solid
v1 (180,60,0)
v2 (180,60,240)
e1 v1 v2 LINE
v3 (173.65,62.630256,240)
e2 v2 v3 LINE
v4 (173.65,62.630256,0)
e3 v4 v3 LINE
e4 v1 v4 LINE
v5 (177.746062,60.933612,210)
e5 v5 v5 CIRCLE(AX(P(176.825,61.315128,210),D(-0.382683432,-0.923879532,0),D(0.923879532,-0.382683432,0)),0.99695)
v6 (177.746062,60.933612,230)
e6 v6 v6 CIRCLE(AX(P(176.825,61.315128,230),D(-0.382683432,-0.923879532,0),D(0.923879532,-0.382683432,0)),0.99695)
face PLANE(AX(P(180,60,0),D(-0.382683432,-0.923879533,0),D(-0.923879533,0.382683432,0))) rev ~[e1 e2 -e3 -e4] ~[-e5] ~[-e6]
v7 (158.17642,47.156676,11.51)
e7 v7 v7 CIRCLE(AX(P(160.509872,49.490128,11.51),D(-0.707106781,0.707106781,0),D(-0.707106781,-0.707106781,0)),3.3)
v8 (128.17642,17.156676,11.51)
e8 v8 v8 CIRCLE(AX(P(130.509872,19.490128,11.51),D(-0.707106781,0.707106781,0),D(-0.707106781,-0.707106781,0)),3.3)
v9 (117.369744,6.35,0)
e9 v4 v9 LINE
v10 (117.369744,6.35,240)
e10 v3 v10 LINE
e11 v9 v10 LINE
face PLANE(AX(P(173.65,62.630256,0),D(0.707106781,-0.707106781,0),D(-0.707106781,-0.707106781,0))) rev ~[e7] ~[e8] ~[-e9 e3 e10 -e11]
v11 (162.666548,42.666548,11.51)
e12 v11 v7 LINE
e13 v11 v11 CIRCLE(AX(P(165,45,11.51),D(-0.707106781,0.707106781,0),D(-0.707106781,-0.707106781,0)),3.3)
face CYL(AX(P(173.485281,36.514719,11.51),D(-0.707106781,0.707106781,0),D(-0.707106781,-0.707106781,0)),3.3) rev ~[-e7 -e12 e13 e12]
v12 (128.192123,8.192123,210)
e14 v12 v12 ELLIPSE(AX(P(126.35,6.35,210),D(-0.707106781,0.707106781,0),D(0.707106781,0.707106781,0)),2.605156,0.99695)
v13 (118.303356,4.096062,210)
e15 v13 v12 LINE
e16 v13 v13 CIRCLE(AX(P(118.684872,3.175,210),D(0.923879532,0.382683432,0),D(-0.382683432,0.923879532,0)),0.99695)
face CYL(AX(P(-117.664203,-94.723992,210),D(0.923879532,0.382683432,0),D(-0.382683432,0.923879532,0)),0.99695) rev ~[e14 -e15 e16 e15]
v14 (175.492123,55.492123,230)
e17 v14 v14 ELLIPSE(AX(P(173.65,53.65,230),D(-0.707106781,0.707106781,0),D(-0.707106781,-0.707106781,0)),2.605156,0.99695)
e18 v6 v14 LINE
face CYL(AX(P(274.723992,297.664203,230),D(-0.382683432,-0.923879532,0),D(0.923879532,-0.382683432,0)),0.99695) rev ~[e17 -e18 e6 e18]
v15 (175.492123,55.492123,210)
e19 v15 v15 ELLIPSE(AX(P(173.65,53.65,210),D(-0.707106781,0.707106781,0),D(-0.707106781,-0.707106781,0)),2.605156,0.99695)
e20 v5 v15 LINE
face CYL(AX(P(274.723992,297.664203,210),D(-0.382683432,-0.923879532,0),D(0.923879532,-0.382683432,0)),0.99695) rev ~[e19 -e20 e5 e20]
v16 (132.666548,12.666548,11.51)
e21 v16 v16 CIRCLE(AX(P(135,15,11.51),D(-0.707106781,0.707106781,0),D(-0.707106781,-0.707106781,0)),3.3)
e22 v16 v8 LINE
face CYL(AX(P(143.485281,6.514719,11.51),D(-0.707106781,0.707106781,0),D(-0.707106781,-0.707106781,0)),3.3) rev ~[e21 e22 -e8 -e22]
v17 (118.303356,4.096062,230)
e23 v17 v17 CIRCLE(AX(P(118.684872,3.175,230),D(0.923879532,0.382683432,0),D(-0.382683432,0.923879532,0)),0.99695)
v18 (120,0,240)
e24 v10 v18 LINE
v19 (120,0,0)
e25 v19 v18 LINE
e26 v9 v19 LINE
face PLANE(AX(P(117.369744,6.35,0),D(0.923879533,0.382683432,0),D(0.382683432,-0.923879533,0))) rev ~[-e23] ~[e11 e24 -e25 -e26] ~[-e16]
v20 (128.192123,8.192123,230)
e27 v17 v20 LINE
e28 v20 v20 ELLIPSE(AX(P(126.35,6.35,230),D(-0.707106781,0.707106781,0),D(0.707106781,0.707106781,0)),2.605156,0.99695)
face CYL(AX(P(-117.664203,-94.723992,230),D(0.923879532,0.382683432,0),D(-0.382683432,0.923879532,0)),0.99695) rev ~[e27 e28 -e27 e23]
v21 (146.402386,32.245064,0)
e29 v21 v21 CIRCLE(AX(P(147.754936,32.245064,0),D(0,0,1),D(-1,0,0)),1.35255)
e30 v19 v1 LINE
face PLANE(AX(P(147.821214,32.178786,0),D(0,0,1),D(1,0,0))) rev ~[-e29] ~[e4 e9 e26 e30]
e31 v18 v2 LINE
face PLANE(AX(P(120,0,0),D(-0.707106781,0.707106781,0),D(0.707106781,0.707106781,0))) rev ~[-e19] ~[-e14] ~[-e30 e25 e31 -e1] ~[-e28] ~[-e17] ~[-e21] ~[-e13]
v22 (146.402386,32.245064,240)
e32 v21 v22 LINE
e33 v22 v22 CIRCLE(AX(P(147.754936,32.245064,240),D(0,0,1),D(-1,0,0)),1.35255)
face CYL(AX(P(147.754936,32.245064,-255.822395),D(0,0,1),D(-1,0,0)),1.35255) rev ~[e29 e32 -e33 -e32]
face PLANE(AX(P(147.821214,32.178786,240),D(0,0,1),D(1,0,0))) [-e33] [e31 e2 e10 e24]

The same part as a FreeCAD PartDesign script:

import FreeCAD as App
import Part
import Sketcher
from FreeCAD import Vector
Q = App.Units.Quantity


def add_polygon(sketch, points):
    """Adds a closed chain of lines whose ends are joined by coincident constraints."""
    first, n = sketch.GeometryCount, len(points)
    for a, b in zip(points, points[1:] + points[:1]):
        sketch.addGeometry(Part.LineSegment(App.Vector(*a, 0), App.Vector(*b, 0)), False)
    for i in range(n):
        sketch.addConstraint(Sketcher.Constraint("Coincident", first + i, 2, first + (i + 1) % n, 1))

doc = App.newDocument("Part")
params = doc.addObject("Spreadsheet::Sheet", "Params")
for row, (alias, value) in enumerate([
    ("pad1_length", "240 mm"),
    ("sketch2_diameter", "6.6 mm"),
    ("hole_diameter", "6.6 mm"),
    ("hole_depth", "12 mm"),
    ("hole2_diameter", "2.7051 mm"),
    ("pad2_length", "240 mm"),
    ("sketch5_diameter", "6.6 mm"),
    ("hole3_diameter", "6.6 mm"),
    ("hole3_depth", "12 mm"),
    ("hole4_diameter", "2.7051 mm"),
    ("pad3_length", "240 mm"),
    ("sketch8_diameter", "6.6 mm"),
    ("hole5_diameter", "6.6 mm"),
    ("hole5_depth", "12 mm"),
    ("pad4_length", "240 mm"),
    ("sketch10_diameter", "6.6 mm"),
    ("hole6_diameter", "6.6 mm"),
    ("hole6_depth", "12 mm"),
    ("hole7_diameter", "2.7051 mm"),
    ("hole8_diameter", "1.9939 mm"),
    ("hole9_diameter", "1.9939 mm"),
], start=1):
    params.set(f"A{row}", alias)
    params.set(f"B{row}", "=" + value)
    params.setAlias(f"B{row}", alias)

body = doc.addObject("PartDesign::Body", "Body")

# Sketch on XY plane
sketch1 = doc.addObject("Sketcher::SketchObject", "Sketch")
body.addObject(sketch1)
sketch1.AttachmentSupport = (doc.XY_Plane, [""])
sketch1.MapMode = "FlatFace"
add_polygon(sketch1, [(-180, 60), (-120, 0), (-117, 6), (-174, 63)])  # lines 0-3
sketch1.addConstraint(Sketcher.Constraint("PointOnObject", 0, 2, -1))
sketch1.addConstraint(Sketcher.Constraint("Parallel", 0, 2))
sketch1.addConstraint(Sketcher.Constraint("Equal", 1, 3))
sketch1.addConstraint(Sketcher.Constraint("Angle", 0, Q("-45 deg")))
sketch1.addConstraint(Sketcher.Constraint("DistanceX", 0, 2, -1, 1, 120.0))
sketch1.addConstraint(Sketcher.Constraint("DistanceX", 3, 2, -1, 1, 180.0))
sketch1.addConstraint(Sketcher.Constraint("Angle", 1, Q("67.5 deg")))
sketch1.addConstraint(Sketcher.Constraint("DistanceY", -1, 1, 1, 2, 6.35))
pad1 = doc.addObject("PartDesign::Pad", "Pad")
body.addObject(pad1)
pad1.Profile = sketch1
pad1.setExpression("Length", "Params.pad1_length")

# Sketch on an angled plane
sketch2 = doc.addObject("Sketcher::SketchObject", "Sketch001")
body.addObject(sketch2)
sketch2.Placement = App.Placement(Vector(-60, -60, 0), App.Rotation(Vector(0.707106781, -0.707106781, 0), Vector(0, 0, 0.999999999), Vector(-0.707106781, -0.707106781, 0), "ZXY"))
sketch2.addGeometry(Part.Circle(Vector(-106.1, 11.5, 0), Vector(0, 0, 1), 3.3), False)
sketch2.addGeometry(Part.Circle(Vector(-148.5, 11.5, 0), Vector(0, 0, 1), 3.3), False)
sketch2.addConstraint(Sketcher.Constraint("Equal", 0, 1))
sketch2.addConstraint(Sketcher.Constraint("Horizontal", 0, 3, 1, 3))
sketch2.addConstraint(Sketcher.Constraint("Diameter", 0, 6.6))
sketch2.addConstraint(Sketcher.Constraint("DistanceY", -1, 1, 0, 3, 11.51))
sketch2.addConstraint(Sketcher.Constraint("DistanceX", 0, 3, -1, 1, 106.066017))
sketch2.addConstraint(Sketcher.Constraint("DistanceX", 1, 3, -1, 1, 148.492424))
sketch2.setExpression("Constraints[2]", "Params.sketch2_diameter")
doc.recompute()
hole = doc.addObject("PartDesign::Hole", "Hole")
body.addObject(hole)
hole.Profile = sketch2
hole.ThreadType = "None"
hole.setExpression("Diameter", "Params.hole_diameter")
hole.DepthType = "Dimension"
hole.setExpression("Depth", "Params.hole_depth")
hole.DrillPoint = "Angled"
hole.DrillPointAngle = 118

# Sketch on XY plane
sketch3 = doc.addObject("Sketcher::SketchObject", "Sketch002")
body.addObject(sketch3)
sketch3.AttachmentSupport = (doc.XY_Plane, [""])
sketch3.MapMode = "FlatFace"
sketch3.addGeometry(Part.Circle(Vector(-147.8, 32.2, 0), Vector(0, 0, 1), 1.4), False)
sketch3.addConstraint(Sketcher.Constraint("Diameter", 0, 2.7051))
sketch3.addConstraint(Sketcher.Constraint("DistanceX", 0, 3, -1, 1, 147.754936))
sketch3.addConstraint(Sketcher.Constraint("DistanceY", -1, 1, 0, 3, 32.245064))
doc.recompute()
hole2 = doc.addObject("PartDesign::Hole", "Hole001")
body.addObject(hole2)
hole2.Profile = sketch3
hole2.ThreadType = "None"
hole2.setExpression("Diameter", "Params.hole2_diameter")
hole2.DepthType = "ThroughAll"
hole2.Reversed = True
body2 = doc.addObject("PartDesign::Body", "Body001")

# Sketch on XY plane
sketch4 = doc.addObject("Sketcher::SketchObject", "Sketch003")
body2.addObject(sketch4)
sketch4.AttachmentSupport = (doc.getObject("XY_Plane001"), [""])
sketch4.MapMode = "FlatFace"
add_polygon(sketch4, [(-120, 280), (-180, 220), (-174, 217), (-117, 274)])  # lines 0-3
sketch4.addConstraint(Sketcher.Constraint("Parallel", 0, 2))
sketch4.addConstraint(Sketcher.Constraint("Equal", 1, 3))
sketch4.addConstraint(Sketcher.Constraint("Angle", 0, Q("-135 deg")))
sketch4.addConstraint(Sketcher.Constraint("DistanceX", 0, 2, -1, 1, 180.0))
sketch4.addConstraint(Sketcher.Constraint("DistanceY", -1, 1, 0, 2, 220.0))
sketch4.addConstraint(Sketcher.Constraint("DistanceX", 3, 2, -1, 1, 120.0))
sketch4.addConstraint(Sketcher.Constraint("Angle", 1, Q("-22.5 deg")))
sketch4.addConstraint(Sketcher.Constraint("DistanceX", 1, 2, -1, 1, 173.65))
pad2 = doc.addObject("PartDesign::Pad", "Pad001")
body2.addObject(pad2)
pad2.Profile = sketch4
pad2.setExpression("Length", "Params.pad2_length")

# Sketch on an angled plane
sketch5 = doc.addObject("Sketcher::SketchObject", "Sketch004")
body2.addObject(sketch5)
sketch5.Placement = App.Placement(Vector(-200, 200, 0), App.Rotation(Vector(-0.707106781, -0.707106781, 0), Vector(0, 0, 0.999999999), Vector(-0.707106781, 0.707106781, 0), "ZXY"))
sketch5.addGeometry(Part.Circle(Vector(-91.9, 11.5, 0), Vector(0, 0, 1), 3.3), False)
sketch5.addGeometry(Part.Circle(Vector(-49.5, 11.5, 0), Vector(0, 0, 1), 3.3), False)
sketch5.addConstraint(Sketcher.Constraint("Equal", 0, 1))
sketch5.addConstraint(Sketcher.Constraint("Horizontal", 0, 3, 1, 3))
sketch5.addConstraint(Sketcher.Constraint("Diameter", 0, 6.6))
sketch5.addConstraint(Sketcher.Constraint("DistanceY", -1, 1, 0, 3, 11.51))
sketch5.addConstraint(Sketcher.Constraint("DistanceX", 0, 3, -1, 1, 91.923882))
sketch5.addConstraint(Sketcher.Constraint("DistanceX", 1, 3, -1, 1, 49.497475))
sketch5.setExpression("Constraints[2]", "Params.sketch5_diameter")
doc.recompute()
hole3 = doc.addObject("PartDesign::Hole", "Hole002")
body2.addObject(hole3)
hole3.Profile = sketch5
hole3.ThreadType = "None"
hole3.setExpression("Diameter", "Params.hole3_diameter")
hole3.DepthType = "Dimension"
hole3.setExpression("Depth", "Params.hole3_depth")
hole3.DrillPoint = "Angled"
hole3.DrillPointAngle = 118

# Sketch on XY plane
sketch6 = doc.addObject("Sketcher::SketchObject", "Sketch005")
body2.addObject(sketch6)
sketch6.AttachmentSupport = (doc.getObject("XY_Plane001"), [""])
sketch6.MapMode = "FlatFace"
sketch6.addGeometry(Part.Circle(Vector(-147.8, 247.8, 0), Vector(0, 0, 1), 1.4), False)
sketch6.addConstraint(Sketcher.Constraint("Diameter", 0, 2.7051))
sketch6.addConstraint(Sketcher.Constraint("DistanceX", 0, 3, -1, 1, 147.754936))
sketch6.addConstraint(Sketcher.Constraint("DistanceY", -1, 1, 0, 3, 247.754936))
doc.recompute()
hole4 = doc.addObject("PartDesign::Hole", "Hole003")
body2.addObject(hole4)
hole4.Profile = sketch6
hole4.ThreadType = "None"
hole4.setExpression("Diameter", "Params.hole4_diameter")
hole4.DepthType = "ThroughAll"
hole4.Reversed = True
body3 = doc.addObject("PartDesign::Body", "Body002")

# Sketch on XY plane
sketch7 = doc.addObject("Sketcher::SketchObject", "Sketch006")
body3.addObject(sketch7)
sketch7.AttachmentSupport = (doc.getObject("XY_Plane002"), [""])
sketch7.MapMode = "FlatFace"
add_polygon(sketch7, [(174, 217), (180, 220), (120, 280), (117, 274)])  # lines 0-3
sketch7.addConstraint(Sketcher.Constraint("Parallel", 1, 3))
sketch7.addConstraint(Sketcher.Constraint("Equal", 0, 2))
sketch7.addConstraint(Sketcher.Constraint("Angle", 1, Q("135 deg")))
sketch7.addConstraint(Sketcher.Constraint("DistanceX", -1, 1, 0, 2, 180.0))
sketch7.addConstraint(Sketcher.Constraint("DistanceY", -1, 1, 0, 2, 220.0))
sketch7.addConstraint(Sketcher.Constraint("DistanceX", -1, 1, 1, 2, 120.0))
sketch7.addConstraint(Sketcher.Constraint("Angle", 0, Q("22.5 deg")))
sketch7.addConstraint(Sketcher.Constraint("DistanceY", -1, 1, 2, 2, 273.65))
pad3 = doc.addObject("PartDesign::Pad", "Pad002")
body3.addObject(pad3)
pad3.Profile = sketch7
pad3.setExpression("Length", "Params.pad3_length")

# Sketch on an angled plane
sketch8 = doc.addObject("Sketcher::SketchObject", "Sketch007")
body3.addObject(sketch8)
sketch8.Placement = App.Placement(Vector(200, 200, 0), App.Rotation(Vector(-0.707106781, 0.707106781, 0), Vector(0, 0, 0.999999999), Vector(0.707106781, 0.707106781, 0), "ZXY"))
sketch8.addGeometry(Part.Circle(Vector(49.5, 11.5, 0), Vector(0, 0, 1), 3.3), False)
sketch8.addGeometry(Part.Circle(Vector(91.9, 11.5, 0), Vector(0, 0, 1), 3.3), False)
sketch8.addConstraint(Sketcher.Constraint("Equal", 0, 1))
sketch8.addConstraint(Sketcher.Constraint("Horizontal", 0, 3, 1, 3))
sketch8.addConstraint(Sketcher.Constraint("Diameter", 0, 6.6))
sketch8.addConstraint(Sketcher.Constraint("DistanceY", -1, 1, 0, 3, 11.51))
sketch8.addConstraint(Sketcher.Constraint("DistanceX", -1, 1, 1, 3, 91.923882))
sketch8.addConstraint(Sketcher.Constraint("DistanceX", -1, 1, 0, 3, 49.497475))
sketch8.setExpression("Constraints[2]", "Params.sketch8_diameter")
doc.recompute()
hole5 = doc.addObject("PartDesign::Hole", "Hole004")
body3.addObject(hole5)
hole5.Profile = sketch8
hole5.ThreadType = "None"
hole5.setExpression("Diameter", "Params.hole5_diameter")
hole5.DepthType = "Dimension"
hole5.setExpression("Depth", "Params.hole5_depth")
hole5.DrillPoint = "Angled"
hole5.DrillPointAngle = 118
body4 = doc.addObject("PartDesign::Body", "Body003")

# Sketch on XY plane
sketch9 = doc.addObject("Sketcher::SketchObject", "Sketch008")
body4.addObject(sketch9)
sketch9.AttachmentSupport = (doc.getObject("XY_Plane003"), [""])
sketch9.MapMode = "FlatFace"
add_polygon(sketch9, [(117, 6), (120, 0), (180, 60), (174, 63)])  # lines 0-3
sketch9.addConstraint(Sketcher.Constraint("PointOnObject", 0, 2, -1))
sketch9.addConstraint(Sketcher.Constraint("Parallel", 1, 3))
sketch9.addConstraint(Sketcher.Constraint("Equal", 0, 2))
sketch9.addConstraint(Sketcher.Constraint("Angle", 1, Q("45 deg")))
sketch9.addConstraint(Sketcher.Constraint("DistanceX", -1, 1, 0, 2, 120.0))
sketch9.addConstraint(Sketcher.Constraint("DistanceX", -1, 1, 1, 2, 180.0))
sketch9.addConstraint(Sketcher.Constraint("Angle", 0, Q("-67.5 deg")))
sketch9.addConstraint(Sketcher.Constraint("DistanceX", -1, 1, 2, 2, 173.65))
pad4 = doc.addObject("PartDesign::Pad", "Pad003")
body4.addObject(pad4)
pad4.Profile = sketch9
pad4.setExpression("Length", "Params.pad4_length")

# Sketch on an angled plane
sketch10 = doc.addObject("Sketcher::SketchObject", "Sketch009")
body4.addObject(sketch10)
sketch10.Placement = App.Placement(Vector(60, -60, 0), App.Rotation(Vector(0.707106781, 0.707106781, 0), Vector(0, 0, 0.999999999), Vector(0.707106781, -0.707106781, 0), "ZXY"))
sketch10.addGeometry(Part.Circle(Vector(148.5, 11.5, 0), Vector(0, 0, 1), 3.3), False)
sketch10.addGeometry(Part.Circle(Vector(106.1, 11.5, 0), Vector(0, 0, 1), 3.3), False)
sketch10.addConstraint(Sketcher.Constraint("Equal", 0, 1))
sketch10.addConstraint(Sketcher.Constraint("Horizontal", 0, 3, 1, 3))
sketch10.addConstraint(Sketcher.Constraint("Diameter", 0, 6.6))
sketch10.addConstraint(Sketcher.Constraint("DistanceY", -1, 1, 0, 3, 11.51))
sketch10.addConstraint(Sketcher.Constraint("DistanceX", -1, 1, 0, 3, 148.492424))
sketch10.addConstraint(Sketcher.Constraint("DistanceX", -1, 1, 1, 3, 106.066017))
sketch10.setExpression("Constraints[2]", "Params.sketch10_diameter")
doc.recompute()
hole6 = doc.addObject("PartDesign::Hole", "Hole005")
body4.addObject(hole6)
hole6.Profile = sketch10
hole6.ThreadType = "None"
hole6.setExpression("Diameter", "Params.hole6_diameter")
hole6.DepthType = "Dimension"
hole6.setExpression("Depth", "Params.hole6_depth")
hole6.DrillPoint = "Angled"
hole6.DrillPointAngle = 118

# Sketch on XY plane
sketch11 = doc.addObject("Sketcher::SketchObject", "Sketch010")
body4.addObject(sketch11)
sketch11.AttachmentSupport = (doc.getObject("XY_Plane003"), [""])
sketch11.MapMode = "FlatFace"
sketch11.addGeometry(Part.Circle(Vector(147.8, 32.2, 0), Vector(0, 0, 1), 1.4), False)
sketch11.addConstraint(Sketcher.Constraint("Diameter", 0, 2.7051))
sketch11.addConstraint(Sketcher.Constraint("DistanceX", -1, 1, 0, 3, 147.754936))
sketch11.addConstraint(Sketcher.Constraint("DistanceY", -1, 1, 0, 3, 32.245064))
doc.recompute()
hole7 = doc.addObject("PartDesign::Hole", "Hole006")
body4.addObject(hole7)
hole7.Profile = sketch11
hole7.ThreadType = "None"
hole7.setExpression("Diameter", "Params.hole7_diameter")
hole7.DepthType = "ThroughAll"
hole7.Reversed = True

# Sketch on an angled plane
sketch12 = doc.addObject("Sketcher::SketchObject", "Sketch011")
body4.addObject(sketch12)
sketch12.Placement = App.Placement(Vector(47.573593, 114.852814, 0), App.Rotation(Vector(-0.923879532, 0.382683432, 0), Vector(0, 0, 0.999999999), Vector(0.382683432, 0.923879532, 0), "ZXY"))
sketch12.addGeometry(Part.Circle(Vector(-139.9, 230, 0), Vector(0, 0, 1), 1), False)
sketch12.addGeometry(Part.Circle(Vector(-139.9, 210, 0), Vector(0, 0, 1), 1), False)
sketch12.addConstraint(Sketcher.Constraint("Equal", 0, 1))
sketch12.addConstraint(Sketcher.Constraint("Vertical", 0, 3, 1, 3))
sketch12.addConstraint(Sketcher.Constraint("DistanceY", -1, 1, 0, 3, 229.999999))
sketch12.addConstraint(Sketcher.Constraint("DistanceY", -1, 1, 1, 3, 209.999999))
sketch12.addConstraint(Sketcher.Constraint("Diameter", 0, 1.9939))
sketch12.addConstraint(Sketcher.Constraint("DistanceX", 0, 3, -1, 1, 139.900714))
doc.recompute()
hole8 = doc.addObject("PartDesign::Hole", "Hole007")
body4.addObject(hole8)
hole8.Profile = sketch12
hole8.ThreadType = "None"
hole8.setExpression("Diameter", "Params.hole8_diameter")
hole8.DepthType = "ThroughAll"

# Sketch on an angled plane
sketch13 = doc.addObject("Sketcher::SketchObject", "Sketch012")
body4.addObject(sketch13)
sketch13.Placement = App.Placement(Vector(102.426407, 42.426407, 0), App.Rotation(Vector(0.382683432, -0.923879532, 0), Vector(0, 0, 0.999999999), Vector(-0.923879532, -0.382683432, 0), "ZXY"))
sketch13.addGeometry(Part.Circle(Vector(42.5, 230, 0), Vector(0, 0, 1), 1), False)
sketch13.addGeometry(Part.Circle(Vector(42.5, 210, 0), Vector(0, 0, 1), 1), False)
sketch13.addConstraint(Sketcher.Constraint("Equal", 0, 1))
sketch13.addConstraint(Sketcher.Constraint("Vertical", 0, 3, 1, 3))
sketch13.addConstraint(Sketcher.Constraint("DistanceY", -1, 1, 0, 3, 229.999999))
sketch13.addConstraint(Sketcher.Constraint("DistanceY", -1, 1, 1, 3, 209.999999))
sketch13.addConstraint(Sketcher.Constraint("Diameter", 0, 1.9939))
sketch13.addConstraint(Sketcher.Constraint("DistanceX", -1, 1, 0, 3, 42.485417))
doc.recompute()
hole9 = doc.addObject("PartDesign::Hole", "Hole008")
body4.addObject(hole9)
hole9.Profile = sketch13
hole9.ThreadType = "None"
hole9.setExpression("Diameter", "Params.hole9_diameter")
hole9.DepthType = "ThroughAll"
body.Visibility = False
body2.Visibility = False
body3.Visibility = False

doc.recompute()
